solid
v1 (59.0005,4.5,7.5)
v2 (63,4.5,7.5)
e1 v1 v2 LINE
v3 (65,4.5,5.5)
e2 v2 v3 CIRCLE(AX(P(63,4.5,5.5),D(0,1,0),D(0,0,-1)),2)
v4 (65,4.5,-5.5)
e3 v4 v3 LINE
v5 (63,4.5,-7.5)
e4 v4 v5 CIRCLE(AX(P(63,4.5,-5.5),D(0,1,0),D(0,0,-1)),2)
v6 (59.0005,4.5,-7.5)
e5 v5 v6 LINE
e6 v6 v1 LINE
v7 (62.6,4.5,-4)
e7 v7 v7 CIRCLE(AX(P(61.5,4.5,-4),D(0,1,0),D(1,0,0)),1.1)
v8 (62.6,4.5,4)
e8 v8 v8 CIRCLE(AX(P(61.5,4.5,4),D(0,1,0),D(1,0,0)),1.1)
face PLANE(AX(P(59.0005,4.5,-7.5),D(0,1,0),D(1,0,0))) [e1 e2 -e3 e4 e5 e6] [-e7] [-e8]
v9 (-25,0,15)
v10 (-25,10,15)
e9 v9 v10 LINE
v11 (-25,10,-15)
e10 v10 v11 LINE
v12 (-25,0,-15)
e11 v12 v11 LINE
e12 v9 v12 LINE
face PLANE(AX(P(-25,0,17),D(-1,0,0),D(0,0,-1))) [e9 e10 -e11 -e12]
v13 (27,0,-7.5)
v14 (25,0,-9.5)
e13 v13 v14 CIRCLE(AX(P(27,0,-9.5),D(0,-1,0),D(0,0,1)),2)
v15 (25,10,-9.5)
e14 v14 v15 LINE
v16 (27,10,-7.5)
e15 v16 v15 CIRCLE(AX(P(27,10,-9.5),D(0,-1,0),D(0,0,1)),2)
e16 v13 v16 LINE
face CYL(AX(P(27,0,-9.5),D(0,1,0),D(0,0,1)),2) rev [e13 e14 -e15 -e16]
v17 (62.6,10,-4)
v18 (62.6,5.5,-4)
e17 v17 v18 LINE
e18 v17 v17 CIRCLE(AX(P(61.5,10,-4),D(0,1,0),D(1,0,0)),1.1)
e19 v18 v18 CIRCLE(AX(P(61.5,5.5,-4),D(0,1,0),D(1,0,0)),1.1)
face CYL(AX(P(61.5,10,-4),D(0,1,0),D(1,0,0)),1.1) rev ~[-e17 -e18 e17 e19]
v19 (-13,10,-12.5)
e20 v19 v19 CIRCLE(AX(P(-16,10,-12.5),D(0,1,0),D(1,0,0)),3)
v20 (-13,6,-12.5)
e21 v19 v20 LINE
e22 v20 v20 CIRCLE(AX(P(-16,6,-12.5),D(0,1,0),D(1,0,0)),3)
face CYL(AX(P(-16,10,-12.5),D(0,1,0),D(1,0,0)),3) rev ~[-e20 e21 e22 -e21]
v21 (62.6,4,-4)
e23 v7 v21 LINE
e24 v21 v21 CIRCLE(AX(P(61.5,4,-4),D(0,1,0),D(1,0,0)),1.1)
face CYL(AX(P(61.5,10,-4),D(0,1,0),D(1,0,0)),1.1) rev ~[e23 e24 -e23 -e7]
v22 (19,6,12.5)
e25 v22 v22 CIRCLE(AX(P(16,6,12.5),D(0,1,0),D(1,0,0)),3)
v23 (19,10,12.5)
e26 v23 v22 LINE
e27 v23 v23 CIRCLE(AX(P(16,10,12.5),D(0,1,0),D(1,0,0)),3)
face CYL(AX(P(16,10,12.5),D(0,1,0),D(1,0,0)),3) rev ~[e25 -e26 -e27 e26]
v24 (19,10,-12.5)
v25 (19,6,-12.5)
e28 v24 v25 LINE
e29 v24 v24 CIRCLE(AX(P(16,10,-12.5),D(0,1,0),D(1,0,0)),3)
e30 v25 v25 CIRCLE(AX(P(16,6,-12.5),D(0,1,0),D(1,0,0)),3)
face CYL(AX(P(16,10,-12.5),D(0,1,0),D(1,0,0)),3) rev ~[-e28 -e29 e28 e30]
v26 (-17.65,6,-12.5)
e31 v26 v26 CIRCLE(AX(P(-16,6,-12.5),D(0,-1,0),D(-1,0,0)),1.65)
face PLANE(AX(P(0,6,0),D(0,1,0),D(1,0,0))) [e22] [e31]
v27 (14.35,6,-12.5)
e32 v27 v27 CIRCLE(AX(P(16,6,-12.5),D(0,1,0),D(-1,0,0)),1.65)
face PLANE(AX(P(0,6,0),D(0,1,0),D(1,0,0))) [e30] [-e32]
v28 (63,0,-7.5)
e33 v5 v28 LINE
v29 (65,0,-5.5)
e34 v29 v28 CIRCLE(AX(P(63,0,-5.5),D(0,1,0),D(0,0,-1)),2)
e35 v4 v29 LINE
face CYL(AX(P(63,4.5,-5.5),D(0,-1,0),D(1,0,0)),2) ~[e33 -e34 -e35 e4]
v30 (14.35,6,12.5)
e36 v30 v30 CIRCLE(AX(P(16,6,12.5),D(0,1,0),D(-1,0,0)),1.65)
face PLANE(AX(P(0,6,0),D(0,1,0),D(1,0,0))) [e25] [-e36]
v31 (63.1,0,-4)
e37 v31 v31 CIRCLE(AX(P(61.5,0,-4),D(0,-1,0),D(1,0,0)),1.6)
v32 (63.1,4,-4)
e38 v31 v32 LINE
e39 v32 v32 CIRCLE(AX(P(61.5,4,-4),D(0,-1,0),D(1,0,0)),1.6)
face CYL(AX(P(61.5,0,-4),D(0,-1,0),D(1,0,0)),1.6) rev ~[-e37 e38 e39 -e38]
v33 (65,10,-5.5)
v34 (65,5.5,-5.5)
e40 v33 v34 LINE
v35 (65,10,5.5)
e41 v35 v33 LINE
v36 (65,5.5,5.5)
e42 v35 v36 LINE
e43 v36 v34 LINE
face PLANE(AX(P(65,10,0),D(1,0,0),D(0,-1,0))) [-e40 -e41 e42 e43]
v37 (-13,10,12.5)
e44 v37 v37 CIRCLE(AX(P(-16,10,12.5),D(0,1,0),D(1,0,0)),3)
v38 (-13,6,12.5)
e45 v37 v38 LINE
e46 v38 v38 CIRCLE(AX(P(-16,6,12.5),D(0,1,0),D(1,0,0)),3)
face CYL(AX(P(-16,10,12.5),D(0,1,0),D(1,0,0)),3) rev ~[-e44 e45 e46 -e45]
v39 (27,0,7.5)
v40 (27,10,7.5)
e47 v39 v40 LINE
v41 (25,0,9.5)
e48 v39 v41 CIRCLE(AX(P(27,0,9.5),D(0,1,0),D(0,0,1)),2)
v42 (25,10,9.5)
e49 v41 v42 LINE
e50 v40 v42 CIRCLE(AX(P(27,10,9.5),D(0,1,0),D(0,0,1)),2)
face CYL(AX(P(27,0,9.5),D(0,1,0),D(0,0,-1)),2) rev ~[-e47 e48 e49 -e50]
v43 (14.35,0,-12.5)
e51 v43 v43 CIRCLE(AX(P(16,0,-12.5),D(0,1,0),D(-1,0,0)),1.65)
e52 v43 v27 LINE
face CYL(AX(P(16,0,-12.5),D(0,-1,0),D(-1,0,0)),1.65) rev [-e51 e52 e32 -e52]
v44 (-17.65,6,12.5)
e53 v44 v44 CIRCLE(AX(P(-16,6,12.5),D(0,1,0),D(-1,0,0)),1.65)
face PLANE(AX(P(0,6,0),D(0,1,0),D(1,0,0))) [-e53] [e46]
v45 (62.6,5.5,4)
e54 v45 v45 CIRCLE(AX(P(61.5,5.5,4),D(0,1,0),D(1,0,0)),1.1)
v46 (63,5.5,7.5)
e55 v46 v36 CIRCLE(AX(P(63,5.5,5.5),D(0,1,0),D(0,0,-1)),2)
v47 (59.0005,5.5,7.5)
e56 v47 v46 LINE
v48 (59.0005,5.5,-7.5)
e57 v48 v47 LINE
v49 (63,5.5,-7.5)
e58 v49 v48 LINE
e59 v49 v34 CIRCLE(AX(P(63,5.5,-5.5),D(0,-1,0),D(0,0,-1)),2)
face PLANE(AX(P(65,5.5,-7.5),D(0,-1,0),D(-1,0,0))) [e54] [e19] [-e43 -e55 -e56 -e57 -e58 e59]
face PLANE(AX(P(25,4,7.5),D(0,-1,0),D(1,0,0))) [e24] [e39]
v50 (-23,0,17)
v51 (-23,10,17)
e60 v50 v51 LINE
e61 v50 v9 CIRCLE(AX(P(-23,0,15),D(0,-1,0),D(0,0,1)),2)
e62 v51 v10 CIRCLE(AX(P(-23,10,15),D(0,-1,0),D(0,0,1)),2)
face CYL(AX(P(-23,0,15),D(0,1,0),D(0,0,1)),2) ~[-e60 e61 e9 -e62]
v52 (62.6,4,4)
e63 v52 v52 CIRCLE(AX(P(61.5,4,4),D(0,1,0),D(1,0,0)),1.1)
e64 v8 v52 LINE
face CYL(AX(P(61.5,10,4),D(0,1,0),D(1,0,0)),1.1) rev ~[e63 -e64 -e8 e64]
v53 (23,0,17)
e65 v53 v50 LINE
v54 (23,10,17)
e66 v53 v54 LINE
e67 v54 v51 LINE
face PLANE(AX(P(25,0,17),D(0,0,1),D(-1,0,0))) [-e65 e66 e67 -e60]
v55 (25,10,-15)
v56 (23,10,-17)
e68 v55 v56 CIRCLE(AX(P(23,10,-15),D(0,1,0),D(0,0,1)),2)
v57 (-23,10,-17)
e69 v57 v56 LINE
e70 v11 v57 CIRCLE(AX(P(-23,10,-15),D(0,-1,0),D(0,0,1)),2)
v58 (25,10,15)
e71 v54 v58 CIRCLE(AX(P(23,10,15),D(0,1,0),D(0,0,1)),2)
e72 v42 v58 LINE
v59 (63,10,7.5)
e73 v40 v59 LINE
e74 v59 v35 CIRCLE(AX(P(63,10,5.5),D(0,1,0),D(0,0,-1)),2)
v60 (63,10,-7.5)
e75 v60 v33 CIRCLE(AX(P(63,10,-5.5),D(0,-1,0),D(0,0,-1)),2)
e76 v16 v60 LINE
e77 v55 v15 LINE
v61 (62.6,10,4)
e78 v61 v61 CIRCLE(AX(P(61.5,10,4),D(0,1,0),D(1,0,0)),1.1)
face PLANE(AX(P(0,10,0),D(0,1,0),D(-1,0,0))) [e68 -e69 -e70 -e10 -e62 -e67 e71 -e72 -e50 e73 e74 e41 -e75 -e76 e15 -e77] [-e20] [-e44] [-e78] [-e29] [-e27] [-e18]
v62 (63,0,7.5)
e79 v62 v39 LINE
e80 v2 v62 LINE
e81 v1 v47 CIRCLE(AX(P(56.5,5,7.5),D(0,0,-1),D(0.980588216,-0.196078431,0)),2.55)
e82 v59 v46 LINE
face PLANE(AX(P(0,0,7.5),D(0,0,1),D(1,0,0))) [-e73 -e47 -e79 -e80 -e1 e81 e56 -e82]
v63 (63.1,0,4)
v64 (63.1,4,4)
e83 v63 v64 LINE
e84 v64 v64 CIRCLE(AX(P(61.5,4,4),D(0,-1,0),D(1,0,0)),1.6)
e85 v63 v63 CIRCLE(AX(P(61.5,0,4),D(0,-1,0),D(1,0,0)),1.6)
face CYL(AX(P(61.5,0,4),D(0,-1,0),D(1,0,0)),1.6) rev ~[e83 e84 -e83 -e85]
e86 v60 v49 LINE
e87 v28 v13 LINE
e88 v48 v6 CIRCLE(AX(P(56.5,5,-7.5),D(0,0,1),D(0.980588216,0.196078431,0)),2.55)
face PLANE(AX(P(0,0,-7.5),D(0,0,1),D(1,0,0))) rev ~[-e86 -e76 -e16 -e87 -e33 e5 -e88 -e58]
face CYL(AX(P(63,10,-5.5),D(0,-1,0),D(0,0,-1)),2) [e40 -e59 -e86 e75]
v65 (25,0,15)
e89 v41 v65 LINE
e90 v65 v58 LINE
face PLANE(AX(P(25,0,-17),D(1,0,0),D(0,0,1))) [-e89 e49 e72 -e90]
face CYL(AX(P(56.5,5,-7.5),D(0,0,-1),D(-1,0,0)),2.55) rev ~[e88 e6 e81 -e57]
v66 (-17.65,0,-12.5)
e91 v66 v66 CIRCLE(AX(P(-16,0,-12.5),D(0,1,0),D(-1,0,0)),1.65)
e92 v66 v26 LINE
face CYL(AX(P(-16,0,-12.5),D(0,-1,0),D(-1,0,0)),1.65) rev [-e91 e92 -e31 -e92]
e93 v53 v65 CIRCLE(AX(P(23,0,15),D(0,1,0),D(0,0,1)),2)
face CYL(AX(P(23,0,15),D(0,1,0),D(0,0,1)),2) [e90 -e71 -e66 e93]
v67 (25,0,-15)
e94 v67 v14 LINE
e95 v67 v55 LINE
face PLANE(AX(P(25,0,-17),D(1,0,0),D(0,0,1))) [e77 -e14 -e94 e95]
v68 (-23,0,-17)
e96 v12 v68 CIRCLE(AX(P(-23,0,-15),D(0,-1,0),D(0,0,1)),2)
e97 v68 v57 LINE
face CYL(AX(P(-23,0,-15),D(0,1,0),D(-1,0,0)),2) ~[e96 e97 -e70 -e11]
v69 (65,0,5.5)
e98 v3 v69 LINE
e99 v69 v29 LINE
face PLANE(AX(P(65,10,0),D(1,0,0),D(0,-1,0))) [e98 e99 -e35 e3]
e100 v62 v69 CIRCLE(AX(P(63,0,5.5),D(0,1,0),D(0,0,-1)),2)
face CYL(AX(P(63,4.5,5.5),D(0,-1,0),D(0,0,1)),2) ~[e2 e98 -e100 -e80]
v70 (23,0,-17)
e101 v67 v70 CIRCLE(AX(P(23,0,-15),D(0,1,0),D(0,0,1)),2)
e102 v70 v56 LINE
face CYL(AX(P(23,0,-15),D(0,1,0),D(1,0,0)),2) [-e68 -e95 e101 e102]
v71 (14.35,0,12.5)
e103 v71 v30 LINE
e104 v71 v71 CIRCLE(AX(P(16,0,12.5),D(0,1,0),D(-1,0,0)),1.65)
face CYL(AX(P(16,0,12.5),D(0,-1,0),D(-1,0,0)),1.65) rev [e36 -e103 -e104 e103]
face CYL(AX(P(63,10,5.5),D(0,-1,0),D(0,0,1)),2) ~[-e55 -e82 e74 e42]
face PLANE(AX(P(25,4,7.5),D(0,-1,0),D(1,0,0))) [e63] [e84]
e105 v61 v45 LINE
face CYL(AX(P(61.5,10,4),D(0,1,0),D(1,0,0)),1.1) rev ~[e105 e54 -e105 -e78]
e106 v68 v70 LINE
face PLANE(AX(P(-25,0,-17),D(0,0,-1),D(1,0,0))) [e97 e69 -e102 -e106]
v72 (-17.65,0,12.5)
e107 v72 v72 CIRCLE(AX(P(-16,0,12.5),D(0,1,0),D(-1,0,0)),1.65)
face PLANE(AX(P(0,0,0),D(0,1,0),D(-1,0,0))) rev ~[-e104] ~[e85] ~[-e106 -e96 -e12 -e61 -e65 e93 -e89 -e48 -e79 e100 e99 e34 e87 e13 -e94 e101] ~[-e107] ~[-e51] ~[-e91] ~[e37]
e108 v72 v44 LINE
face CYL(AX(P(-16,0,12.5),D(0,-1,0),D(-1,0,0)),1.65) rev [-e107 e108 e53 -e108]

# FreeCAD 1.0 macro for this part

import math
import FreeCAD as App
import Part
import Sketcher
from FreeCAD import Vector


def edges_at(feature, points):
    """Names of the edges that pass closest to the given points."""
    edges = feature.Shape.Edges
    near = lambda p: min(range(len(edges)), key=lambda i: edges[i].distToShape(Part.Vertex(*p))[0])
    return sorted({f"Edge{near(p) + 1}" for p in points})


def add_polygon(sketch, points):
    """Adds a closed chain of lines whose ends are joined by coincident constraints."""
    first, n = sketch.GeometryCount, len(points)
    for a, b in zip(points, points[1:] + points[:1]):
        sketch.addGeometry(Part.LineSegment(App.Vector(*a, 0), App.Vector(*b, 0)), False)
    for i in range(n):
        sketch.addConstraint(Sketcher.Constraint("Coincident", first + i, 2, first + (i + 1) % n, 1))

doc = App.newDocument("Part")
body = doc.addObject("PartDesign::Body", "Body")

# Sketch on XZ plane
sketch1 = body.newObject("Sketcher::SketchObject", "Sketch")
sketch1.AttachmentSupport = (doc.getObject("XZ_Plane"), [""])
sketch1.MapMode = "FlatFace"
add_polygon(sketch1, [(-25, 17), (25, 17), (25, -17), (-25, -17)])  # lines 0-3
sketch1.addGeometry(Part.Circle(Vector(16, -12.5, 0), Vector(0, 0, 1), 1.6), False)  # 4
sketch1.addGeometry(Part.Circle(Vector(-16, -12.5, 0), Vector(0, 0, 1), 1.6), False)  # 5
sketch1.addGeometry(Part.Circle(Vector(16, 12.5, 0), Vector(0, 0, 1), 1.6), False)  # 6
sketch1.addGeometry(Part.Circle(Vector(-16, 12.5, 0), Vector(0, 0, 1), 1.6), False)  # 7
sketch1.addConstraint(Sketcher.Constraint("Horizontal", 0))
sketch1.addConstraint(Sketcher.Constraint("Vertical", 1))
sketch1.addConstraint(Sketcher.Constraint("Horizontal", 2))
sketch1.addConstraint(Sketcher.Constraint("Vertical", 3))
sketch1.addConstraint(Sketcher.Constraint("Equal", 4, 5))
sketch1.addConstraint(Sketcher.Constraint("Equal", 5, 6))
sketch1.addConstraint(Sketcher.Constraint("Equal", 6, 7))
sketch1.addConstraint(Sketcher.Constraint("Symmetric", 5, 3, 6, 3, -1, 1))
sketch1.addConstraint(Sketcher.Constraint("Symmetric", 4, 3, 7, 3, -1, 1))
sketch1.addConstraint(Sketcher.Constraint("Symmetric", 0, 2, 2, 2, -1, 1))
sketch1.addConstraint(Sketcher.Constraint("Symmetric", 4, 3, 5, 3, -2))
sketch1.addConstraint(Sketcher.Constraint("Diameter", 4, 3.3))
sketch1.addConstraint(Sketcher.Constraint("DistanceX", 0, 1, 0, 2, 50.0))
sketch1.addConstraint(Sketcher.Constraint("DistanceY", 1, 2, 1, 1, 34.0))
sketch1.addConstraint(Sketcher.Constraint("DistanceX", 5, 3, 4, 3, 32.0))
sketch1.addConstraint(Sketcher.Constraint("DistanceY", 4, 3, 6, 3, 25.0))
pad1 = body.newObject("PartDesign::Pad", "Pad")
pad1.Profile = sketch1
pad1.Length = 10
pad1.Reversed = True

# Sketch on XZ plane
sketch2 = body.newObject("Sketcher::SketchObject", "Sketch001")
sketch2.AttachmentSupport = (doc.getObject("XZ_Plane"), [""])
sketch2.MapMode = "FlatFace"
sketch2.AttachmentOffset = App.Placement(Vector(0, 0, -10), App.Rotation())
sketch2.addGeometry(Part.Circle(Vector(-16, -12.5, 0), Vector(0, 0, 1), 3), False)
sketch2.addGeometry(Part.Circle(Vector(16, -12.5, 0), Vector(0, 0, 1), 3), False)
sketch2.addGeometry(Part.Circle(Vector(16, -12.5, 0), Vector(0, 0, 1), 1.6), False)
sketch2.addGeometry(Part.Circle(Vector(16, 12.5, 0), Vector(0, 0, 1), 3), False)
sketch2.addGeometry(Part.Circle(Vector(16, 12.5, 0), Vector(0, 0, 1), 1.6), False)
sketch2.addGeometry(Part.Circle(Vector(-16, 12.5, 0), Vector(0, 0, 1), 3), False)
sketch2.addGeometry(Part.Circle(Vector(-16, 12.5, 0), Vector(0, 0, 1), 1.6), False)
sketch2.addConstraint(Sketcher.Constraint("Coincident", 2, 3, 1, 3))
sketch2.addConstraint(Sketcher.Constraint("Coincident", 4, 3, 3, 3))
sketch2.addConstraint(Sketcher.Constraint("Coincident", 6, 3, 5, 3))
sketch2.addConstraint(Sketcher.Constraint("Equal", 0, 1))
sketch2.addConstraint(Sketcher.Constraint("Equal", 1, 3))
sketch2.addConstraint(Sketcher.Constraint("Equal", 2, 4))
sketch2.addConstraint(Sketcher.Constraint("Equal", 3, 5))
sketch2.addConstraint(Sketcher.Constraint("Equal", 4, 6))
sketch2.addConstraint(Sketcher.Constraint("Symmetric", 0, 3, 3, 3, -1, 1))
sketch2.addConstraint(Sketcher.Constraint("Symmetric", 1, 3, 5, 3, -1, 1))
sketch2.addConstraint(Sketcher.Constraint("Symmetric", 0, 3, 1, 3, -2))
sketch2.addConstraint(Sketcher.Constraint("Diameter", 0, 6.0))
sketch2.addConstraint(Sketcher.Constraint("Diameter", 2, 3.3))
sketch2.addConstraint(Sketcher.Constraint("DistanceX", 0, 3, -1, 1, 16.0))
sketch2.addConstraint(Sketcher.Constraint("DistanceY", 1, 3, 3, 3, 25.0))
pocket1 = body.newObject("PartDesign::Pocket", "Pocket")
pocket1.Profile = sketch2
pocket1.Length = 4
pocket1.Reversed = True
doc.recompute()

fillet = body.newObject("PartDesign::Fillet", "Fillet")
fillet.Base = (pocket1, edges_at(pocket1, [
    (25, 5, 17),
    (25, 5, -17),
    (-25, 5, 17),
    (-25, 5, -17),
]))
fillet.Radius = 2

# Sketch on XY plane
sketch3 = body.newObject("Sketcher::SketchObject", "Sketch002")
sketch3.AttachmentSupport = (doc.getObject("XY_Plane"), [""])
sketch3.MapMode = "FlatFace"
add_polygon(sketch3, [(65, 10), (25, 10), (25, 0), (65, 0)])  # lines 0-3
sketch3.addConstraint(Sketcher.Constraint("Horizontal", 0))
sketch3.addConstraint(Sketcher.Constraint("Vertical", 1))
sketch3.addConstraint(Sketcher.Constraint("Horizontal", 2))
sketch3.addConstraint(Sketcher.Constraint("Vertical", 3))
sketch3.addConstraint(Sketcher.Constraint("PointOnObject", 1, 2, -1))
sketch3.addConstraint(Sketcher.Constraint("DistanceX", 0, 2, 0, 1, 40.0))
sketch3.addConstraint(Sketcher.Constraint("DistanceY", 1, 2, 1, 1, 10.0))
sketch3.addConstraint(Sketcher.Constraint("DistanceX", -1, 1, 0, 2, 25.0))
pad2 = body.newObject("PartDesign::Pad", "Pad001")
pad2.Profile = sketch3
pad2.Length = 15
pad2.Midplane = True

# Sketch on XY plane
sketch4 = body.newObject("Sketcher::SketchObject", "Sketch003")
sketch4.AttachmentSupport = (doc.getObject("XY_Plane"), [""])
sketch4.MapMode = "FlatFace"
sketch4.AttachmentOffset = App.Placement(Vector(0, 0, -7.5), App.Rotation())
sketch4.addGeometry(Part.LineSegment(Vector(59, 5.5, 0), Vector(67.1, 5.5, 0)), False)
sketch4.addGeometry(Part.LineSegment(Vector(67.1, 5.5, 0), Vector(67.1, 4.5, 0)), False)
sketch4.addGeometry(Part.LineSegment(Vector(67.1, 4.5, 0), Vector(59, 4.5, 0)), False)
sketch4.addGeometry(Part.ArcOfCircle(Part.Circle(Vector(56.5, 5, 0), Vector(0, 0, 1), 2.5), math.radians(11), math.radians(349)), False)
sketch4.addConstraint(Sketcher.Constraint("Coincident", 0, 2, 1, 1))
sketch4.addConstraint(Sketcher.Constraint("Coincident", 1, 2, 2, 1))
sketch4.addConstraint(Sketcher.Constraint("Coincident", 2, 2, 3, 2))
sketch4.addConstraint(Sketcher.Constraint("Coincident", 3, 1, 0, 1))
sketch4.addConstraint(Sketcher.Constraint("Horizontal", 0))
sketch4.addConstraint(Sketcher.Constraint("Vertical", 1))
sketch4.addConstraint(Sketcher.Constraint("Horizontal", 2))
sketch4.addConstraint(Sketcher.Constraint("Vertical", 2, 2, 3, 1))
sketch4.addConstraint(Sketcher.Constraint("DistanceY", 1, 2, 1, 1, 1.0))
sketch4.addConstraint(Sketcher.Constraint("Radius", 3, 2.55))
sketch4.addConstraint(Sketcher.Constraint("DistanceY", -1, 1, 3, 3, 5.0))
sketch4.addConstraint(Sketcher.Constraint("DistanceX", -1, 1, 3, 3, 56.5))
sketch4.addConstraint(Sketcher.Constraint("DistanceX", 0, 1, 0, 2, 8.1057))
pocket2 = body.newObject("PartDesign::Pocket", "Pocket001")
pocket2.Profile = sketch4
pocket2.Length = 15
pocket2.Reversed = True

# Sketch on XZ plane
sketch5 = body.newObject("Sketcher::SketchObject", "Sketch004")
sketch5.AttachmentSupport = (doc.getObject("XZ_Plane"), [""])
sketch5.MapMode = "FlatFace"
sketch5.AttachmentOffset = App.Placement(Vector(0, 0, -10), App.Rotation())
sketch5.addGeometry(Part.Circle(Vector(61.5, -4, 0), Vector(0, 0, 1), 1.1), False)
sketch5.addGeometry(Part.Circle(Vector(61.5, 4, 0), Vector(0, 0, 1), 1.1), False)
sketch5.addConstraint(Sketcher.Constraint("Equal", 0, 1))
sketch5.addConstraint(Sketcher.Constraint("Symmetric", 0, 3, 1, 3, -1))
sketch5.addConstraint(Sketcher.Constraint("Diameter", 0, 2.2))
sketch5.addConstraint(Sketcher.Constraint("DistanceY", 0, 3, -1, 1, 4.0))
sketch5.addConstraint(Sketcher.Constraint("DistanceX", -1, 1, 0, 3, 61.5))
pocket3 = body.newObject("PartDesign::Pocket", "Pocket002")
pocket3.Profile = sketch5
pocket3.Length = 10.25
pocket3.Reversed = True

# Sketch on XZ plane
sketch6 = body.newObject("Sketcher::SketchObject", "Sketch005")
sketch6.AttachmentSupport = (doc.getObject("XZ_Plane"), [""])
sketch6.MapMode = "FlatFace"
sketch6.addGeometry(Part.Circle(Vector(61.5, 4, 0), Vector(0, 0, 1), 1.6), False)
sketch6.addGeometry(Part.Circle(Vector(61.5, -4, 0), Vector(0, 0, 1), 1.6), False)
sketch6.addConstraint(Sketcher.Constraint("Equal", 0, 1))
sketch6.addConstraint(Sketcher.Constraint("Symmetric", 0, 3, 1, 3, -1))
sketch6.addConstraint(Sketcher.Constraint("Diameter", 0, 3.2))
sketch6.addConstraint(Sketcher.Constraint("DistanceY", -1, 1, 0, 3, 4.0))
sketch6.addConstraint(Sketcher.Constraint("DistanceX", -1, 1, 0, 3, 61.5))
pocket4 = body.newObject("PartDesign::Pocket", "Pocket003")
pocket4.Profile = sketch6
pocket4.Length = 4
doc.recompute()

fillet2 = body.newObject("PartDesign::Fillet", "Fillet001")
fillet2.Base = (pocket4, edges_at(pocket4, [
    (65, 7.75, -7.5),
    (65, 2.25, -7.5),
    (65, 2.25, 7.5),
    (65, 7.75, 7.5),
]))
fillet2.Radius = 2
doc.recompute()

fillet3 = body.newObject("PartDesign::Fillet", "Fillet002")
fillet3.Base = (fillet2, edges_at(fillet2, [(25, 5, -7.5), (25, 5, 7.5)]))
fillet3.Radius = 2

doc.recompute()
